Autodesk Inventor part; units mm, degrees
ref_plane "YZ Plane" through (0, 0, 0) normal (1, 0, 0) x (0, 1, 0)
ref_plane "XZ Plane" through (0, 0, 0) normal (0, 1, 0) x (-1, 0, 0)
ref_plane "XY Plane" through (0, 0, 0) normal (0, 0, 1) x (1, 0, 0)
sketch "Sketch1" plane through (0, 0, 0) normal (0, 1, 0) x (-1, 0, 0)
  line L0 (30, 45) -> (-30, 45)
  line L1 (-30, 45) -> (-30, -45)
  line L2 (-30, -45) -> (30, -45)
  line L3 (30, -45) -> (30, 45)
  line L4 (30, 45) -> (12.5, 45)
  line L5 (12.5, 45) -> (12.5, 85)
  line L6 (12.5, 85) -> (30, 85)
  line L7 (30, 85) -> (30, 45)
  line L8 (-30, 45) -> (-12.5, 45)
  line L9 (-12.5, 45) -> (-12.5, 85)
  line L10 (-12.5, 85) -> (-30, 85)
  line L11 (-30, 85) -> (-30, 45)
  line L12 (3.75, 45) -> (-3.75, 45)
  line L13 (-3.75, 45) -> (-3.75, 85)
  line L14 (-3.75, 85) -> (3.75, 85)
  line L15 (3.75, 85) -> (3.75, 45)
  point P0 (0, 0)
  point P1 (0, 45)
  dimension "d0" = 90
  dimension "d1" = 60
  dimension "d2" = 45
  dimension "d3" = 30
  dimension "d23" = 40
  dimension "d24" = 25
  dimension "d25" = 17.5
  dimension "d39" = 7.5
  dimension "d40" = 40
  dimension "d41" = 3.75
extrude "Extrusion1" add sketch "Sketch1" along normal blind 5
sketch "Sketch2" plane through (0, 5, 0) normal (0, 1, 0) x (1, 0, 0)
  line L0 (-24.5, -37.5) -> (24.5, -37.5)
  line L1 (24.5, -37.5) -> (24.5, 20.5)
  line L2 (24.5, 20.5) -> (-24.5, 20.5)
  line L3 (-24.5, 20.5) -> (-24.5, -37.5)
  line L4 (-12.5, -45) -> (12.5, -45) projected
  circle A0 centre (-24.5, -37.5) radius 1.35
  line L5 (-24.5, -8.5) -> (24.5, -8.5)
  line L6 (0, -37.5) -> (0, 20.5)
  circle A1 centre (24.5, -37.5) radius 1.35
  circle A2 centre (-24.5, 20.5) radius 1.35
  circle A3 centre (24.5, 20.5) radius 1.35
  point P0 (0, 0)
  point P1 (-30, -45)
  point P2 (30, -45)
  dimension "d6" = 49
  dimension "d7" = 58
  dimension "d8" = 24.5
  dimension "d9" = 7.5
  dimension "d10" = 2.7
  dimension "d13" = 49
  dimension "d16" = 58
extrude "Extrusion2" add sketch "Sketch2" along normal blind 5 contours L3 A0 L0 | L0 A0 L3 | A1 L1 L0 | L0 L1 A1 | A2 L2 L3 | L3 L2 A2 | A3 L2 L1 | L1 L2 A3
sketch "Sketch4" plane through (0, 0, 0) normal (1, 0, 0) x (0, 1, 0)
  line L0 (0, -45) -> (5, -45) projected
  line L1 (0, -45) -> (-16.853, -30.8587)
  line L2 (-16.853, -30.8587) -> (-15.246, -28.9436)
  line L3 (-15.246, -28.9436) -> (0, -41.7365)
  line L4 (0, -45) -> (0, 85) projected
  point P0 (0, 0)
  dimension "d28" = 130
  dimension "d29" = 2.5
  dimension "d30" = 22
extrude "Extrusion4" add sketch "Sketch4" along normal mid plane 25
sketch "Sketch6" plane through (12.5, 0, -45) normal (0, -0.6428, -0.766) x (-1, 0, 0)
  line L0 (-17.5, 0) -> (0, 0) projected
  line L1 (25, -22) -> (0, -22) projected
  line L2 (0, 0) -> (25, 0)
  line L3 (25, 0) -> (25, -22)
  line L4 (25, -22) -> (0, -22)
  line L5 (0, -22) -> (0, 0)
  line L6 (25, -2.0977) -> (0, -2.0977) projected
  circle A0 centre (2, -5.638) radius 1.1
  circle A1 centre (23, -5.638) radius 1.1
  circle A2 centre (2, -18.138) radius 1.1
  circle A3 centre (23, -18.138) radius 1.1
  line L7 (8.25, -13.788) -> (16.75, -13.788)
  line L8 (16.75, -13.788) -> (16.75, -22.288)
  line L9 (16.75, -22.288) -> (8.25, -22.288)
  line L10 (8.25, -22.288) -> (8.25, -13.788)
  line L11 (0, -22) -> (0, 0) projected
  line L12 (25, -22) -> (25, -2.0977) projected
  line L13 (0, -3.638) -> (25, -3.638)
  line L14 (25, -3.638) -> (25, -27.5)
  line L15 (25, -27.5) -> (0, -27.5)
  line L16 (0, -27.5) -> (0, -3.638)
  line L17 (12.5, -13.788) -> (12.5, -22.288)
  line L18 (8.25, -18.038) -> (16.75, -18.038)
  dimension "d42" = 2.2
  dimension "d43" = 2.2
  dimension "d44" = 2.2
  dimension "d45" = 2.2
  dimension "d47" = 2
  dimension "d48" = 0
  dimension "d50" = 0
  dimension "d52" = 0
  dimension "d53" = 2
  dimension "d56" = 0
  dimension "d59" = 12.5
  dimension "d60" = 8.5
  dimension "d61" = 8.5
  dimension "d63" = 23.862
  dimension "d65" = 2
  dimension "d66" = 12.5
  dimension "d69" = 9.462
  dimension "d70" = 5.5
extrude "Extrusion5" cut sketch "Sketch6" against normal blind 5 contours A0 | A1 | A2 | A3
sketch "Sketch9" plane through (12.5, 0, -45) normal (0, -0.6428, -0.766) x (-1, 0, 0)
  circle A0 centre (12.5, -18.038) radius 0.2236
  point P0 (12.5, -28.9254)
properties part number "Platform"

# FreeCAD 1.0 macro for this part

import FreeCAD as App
import Part
import Sketcher
Q = App.Units.Quantity


def add_polygon(sketch, points):
    """Adds a closed chain of lines whose ends are joined by coincident constraints."""
    first, n = sketch.GeometryCount, len(points)
    for a, b in zip(points, points[1:] + points[:1]):
        sketch.addGeometry(Part.LineSegment(App.Vector(*a, 0), App.Vector(*b, 0)), False)
    for i in range(n):
        sketch.addConstraint(Sketcher.Constraint("Coincident", first + i, 2, first + (i + 1) % n, 1))

doc = App.newDocument("Part")
body = doc.addObject("PartDesign::Body", "Body")

sketch1 = body.newObject("Sketcher::SketchObject", "Sketch")
sketch1.AttachmentSupport = (doc.getObject("XZ_Plane"), [""])
sketch1.MapMode = "FlatFace"
add_polygon(sketch1, [(-30, -45), (-30, 85), (-12.5, 85), (-12.5, 45), (-3.75, 45), (-3.75, 85), (3.75, 85), (3.75, 45), (12.5, 45), (12.5, 85), (30, 85), (30, -45)])
sketch1.addConstraint([
    Sketcher.Constraint("Vertical", 0),
    Sketcher.Constraint("Horizontal", 1),
    Sketcher.Constraint("Vertical", 2),
    Sketcher.Constraint("Horizontal", 3),
    Sketcher.Constraint("Vertical", 4),
    Sketcher.Constraint("Horizontal", 5),
    Sketcher.Constraint("Vertical", 6),
    Sketcher.Constraint("Horizontal", 7),
    Sketcher.Constraint("Vertical", 8),
    Sketcher.Constraint("Horizontal", 9),
    Sketcher.Constraint("Vertical", 10),
    Sketcher.Constraint("Horizontal", 11),
    Sketcher.Constraint("Symmetric", 3, 2, 6, 2, -2),
    Sketcher.Constraint("Symmetric", 1, 2, 8, 2, -2),
    Sketcher.Constraint("Horizontal", 1, 2, 4, 2),
    Sketcher.Constraint("Equal", 1, 9),
    Sketcher.Constraint("DistanceX", 11, 2, 11, 1, 60.0),
    Sketcher.Constraint("DistanceY", 2, 2, 2, 1, 40.0),
    Sketcher.Constraint("DistanceX", 1, 1, 1, 2, 17.5),
    Sketcher.Constraint("DistanceX", 5, 1, 5, 2, 7.5),
    Sketcher.Constraint("DistanceY", -1, 1, 2, 2, 45.0),
    Sketcher.Constraint("DistanceY", 10, 2, -1, 1, 45.0),
])
pad1 = body.newObject("PartDesign::Pad", "Pad")
pad1.Profile = sketch1
pad1.Length = 5
pad1.Reversed = True

sketch2 = body.newObject("Sketcher::SketchObject", "Sketch001")
sketch2.AttachmentSupport = (doc.getObject("XZ_Plane"), [""])
sketch2.MapMode = "FlatFace"
sketch2.AttachmentOffset = App.Placement(App.Vector(0, 0, -5), App.Rotation())
sketch2.addGeometry([
    Part.Circle(App.Vector(-24.5, 37.5, 0), App.Vector(0, 0, 1), 1.35),
    Part.Circle(App.Vector(24.5, 37.5, 0), App.Vector(0, 0, 1), 1.35),
    Part.Circle(App.Vector(-24.5, -20.5, 0), App.Vector(0, 0, 1), 1.35),
    Part.Circle(App.Vector(24.5, -20.5, 0), App.Vector(0, 0, 1), 1.35),
], False)
sketch2.addConstraint([
    Sketcher.Constraint("Equal", 0, 1),
    Sketcher.Constraint("Equal", 1, 2),
    Sketcher.Constraint("Equal", 2, 3),
    Sketcher.Constraint("Symmetric", 0, 3, 1, 3, -2),
    Sketcher.Constraint("Symmetric", 2, 3, 3, 3, -2),
    Sketcher.Constraint("Vertical", 0, 3, 2, 3),
    Sketcher.Constraint("Diameter", 0, 2.7),
    Sketcher.Constraint("DistanceX", 0, 3, 1, 3, 49.0),
    Sketcher.Constraint("DistanceY", 2, 3, 0, 3, 58.0),
    Sketcher.Constraint("DistanceY", -1, 1, 0, 3, 37.5),
])
pad2 = body.newObject("PartDesign::Pad", "Pad001")
pad2.Profile = sketch2
pad2.Length = 5
pad2.Reversed = True

sketch3 = body.newObject("Sketcher::SketchObject", "Sketch002")
sketch3.AttachmentSupport = (doc.getObject("YZ_Plane"), [""])
sketch3.MapMode = "FlatFace"
add_polygon(sketch3, [(-16.853, -30.8587), (0, -45), (0, -41.7365), (-15.246, -28.9436)])
sketch3.addConstraint([
    Sketcher.Constraint("Vertical", 1),
    Sketcher.Constraint("PointOnObject", 0, 2, -2),
    Sketcher.Constraint("Parallel", 0, 2),
    Sketcher.Constraint("Perpendicular", 2, 3),
    Sketcher.Constraint("Distance", 0, 22.0),
    Sketcher.Constraint("Distance", 3, 2.5),
    Sketcher.Constraint("Angle", 0, Q("-40 deg")),
    Sketcher.Constraint("DistanceY", 0, 2, -1, 1, 45.0),
])
pad3 = body.newObject("PartDesign::Pad", "Pad002")
pad3.Profile = sketch3
pad3.Length = 25
pad3.Midplane = True

sketch4 = body.newObject("Sketcher::SketchObject", "Sketch003")
sketch4.Placement = App.Placement(App.Vector(12.5, 0, -45), App.Rotation(App.Vector(-1, 0, 0), App.Vector(0, 0.766044443, -0.64278761), App.Vector(0, -0.64278761, -0.766044443), "ZXY"))
sketch4.addGeometry([
    Part.Circle(App.Vector(2, -5.638, 0), App.Vector(0, 0, 1), 1.1),
    Part.Circle(App.Vector(23, -5.638, 0), App.Vector(0, 0, 1), 1.1),
    Part.Circle(App.Vector(2, -18.138, 0), App.Vector(0, 0, 1), 1.1),
    Part.Circle(App.Vector(23, -18.138, 0), App.Vector(0, 0, 1), 1.1),
], False)
sketch4.addConstraint([
    Sketcher.Constraint("Equal", 0, 1),
    Sketcher.Constraint("Equal", 1, 2),
    Sketcher.Constraint("Equal", 2, 3),
    Sketcher.Constraint("Horizontal", 0, 3, 1, 3),
    Sketcher.Constraint("Horizontal", 2, 3, 3, 3),
    Sketcher.Constraint("Vertical", 0, 3, 2, 3),
    Sketcher.Constraint("Vertical", 1, 3, 3, 3),
    Sketcher.Constraint("Diameter", 0, 2.2),
    Sketcher.Constraint("DistanceX", -1, 1, 0, 3, 2.0),
    Sketcher.Constraint("DistanceY", 2, 3, 0, 3, 12.5),
    Sketcher.Constraint("DistanceX", -1, 1, 1, 3, 23.0),
    Sketcher.Constraint("DistanceY", 0, 3, -1, 1, 5.638),
])
pocket1 = body.newObject("PartDesign::Pocket", "Pocket")
pocket1.Profile = sketch4
pocket1.Length = 5

doc.recompute()
